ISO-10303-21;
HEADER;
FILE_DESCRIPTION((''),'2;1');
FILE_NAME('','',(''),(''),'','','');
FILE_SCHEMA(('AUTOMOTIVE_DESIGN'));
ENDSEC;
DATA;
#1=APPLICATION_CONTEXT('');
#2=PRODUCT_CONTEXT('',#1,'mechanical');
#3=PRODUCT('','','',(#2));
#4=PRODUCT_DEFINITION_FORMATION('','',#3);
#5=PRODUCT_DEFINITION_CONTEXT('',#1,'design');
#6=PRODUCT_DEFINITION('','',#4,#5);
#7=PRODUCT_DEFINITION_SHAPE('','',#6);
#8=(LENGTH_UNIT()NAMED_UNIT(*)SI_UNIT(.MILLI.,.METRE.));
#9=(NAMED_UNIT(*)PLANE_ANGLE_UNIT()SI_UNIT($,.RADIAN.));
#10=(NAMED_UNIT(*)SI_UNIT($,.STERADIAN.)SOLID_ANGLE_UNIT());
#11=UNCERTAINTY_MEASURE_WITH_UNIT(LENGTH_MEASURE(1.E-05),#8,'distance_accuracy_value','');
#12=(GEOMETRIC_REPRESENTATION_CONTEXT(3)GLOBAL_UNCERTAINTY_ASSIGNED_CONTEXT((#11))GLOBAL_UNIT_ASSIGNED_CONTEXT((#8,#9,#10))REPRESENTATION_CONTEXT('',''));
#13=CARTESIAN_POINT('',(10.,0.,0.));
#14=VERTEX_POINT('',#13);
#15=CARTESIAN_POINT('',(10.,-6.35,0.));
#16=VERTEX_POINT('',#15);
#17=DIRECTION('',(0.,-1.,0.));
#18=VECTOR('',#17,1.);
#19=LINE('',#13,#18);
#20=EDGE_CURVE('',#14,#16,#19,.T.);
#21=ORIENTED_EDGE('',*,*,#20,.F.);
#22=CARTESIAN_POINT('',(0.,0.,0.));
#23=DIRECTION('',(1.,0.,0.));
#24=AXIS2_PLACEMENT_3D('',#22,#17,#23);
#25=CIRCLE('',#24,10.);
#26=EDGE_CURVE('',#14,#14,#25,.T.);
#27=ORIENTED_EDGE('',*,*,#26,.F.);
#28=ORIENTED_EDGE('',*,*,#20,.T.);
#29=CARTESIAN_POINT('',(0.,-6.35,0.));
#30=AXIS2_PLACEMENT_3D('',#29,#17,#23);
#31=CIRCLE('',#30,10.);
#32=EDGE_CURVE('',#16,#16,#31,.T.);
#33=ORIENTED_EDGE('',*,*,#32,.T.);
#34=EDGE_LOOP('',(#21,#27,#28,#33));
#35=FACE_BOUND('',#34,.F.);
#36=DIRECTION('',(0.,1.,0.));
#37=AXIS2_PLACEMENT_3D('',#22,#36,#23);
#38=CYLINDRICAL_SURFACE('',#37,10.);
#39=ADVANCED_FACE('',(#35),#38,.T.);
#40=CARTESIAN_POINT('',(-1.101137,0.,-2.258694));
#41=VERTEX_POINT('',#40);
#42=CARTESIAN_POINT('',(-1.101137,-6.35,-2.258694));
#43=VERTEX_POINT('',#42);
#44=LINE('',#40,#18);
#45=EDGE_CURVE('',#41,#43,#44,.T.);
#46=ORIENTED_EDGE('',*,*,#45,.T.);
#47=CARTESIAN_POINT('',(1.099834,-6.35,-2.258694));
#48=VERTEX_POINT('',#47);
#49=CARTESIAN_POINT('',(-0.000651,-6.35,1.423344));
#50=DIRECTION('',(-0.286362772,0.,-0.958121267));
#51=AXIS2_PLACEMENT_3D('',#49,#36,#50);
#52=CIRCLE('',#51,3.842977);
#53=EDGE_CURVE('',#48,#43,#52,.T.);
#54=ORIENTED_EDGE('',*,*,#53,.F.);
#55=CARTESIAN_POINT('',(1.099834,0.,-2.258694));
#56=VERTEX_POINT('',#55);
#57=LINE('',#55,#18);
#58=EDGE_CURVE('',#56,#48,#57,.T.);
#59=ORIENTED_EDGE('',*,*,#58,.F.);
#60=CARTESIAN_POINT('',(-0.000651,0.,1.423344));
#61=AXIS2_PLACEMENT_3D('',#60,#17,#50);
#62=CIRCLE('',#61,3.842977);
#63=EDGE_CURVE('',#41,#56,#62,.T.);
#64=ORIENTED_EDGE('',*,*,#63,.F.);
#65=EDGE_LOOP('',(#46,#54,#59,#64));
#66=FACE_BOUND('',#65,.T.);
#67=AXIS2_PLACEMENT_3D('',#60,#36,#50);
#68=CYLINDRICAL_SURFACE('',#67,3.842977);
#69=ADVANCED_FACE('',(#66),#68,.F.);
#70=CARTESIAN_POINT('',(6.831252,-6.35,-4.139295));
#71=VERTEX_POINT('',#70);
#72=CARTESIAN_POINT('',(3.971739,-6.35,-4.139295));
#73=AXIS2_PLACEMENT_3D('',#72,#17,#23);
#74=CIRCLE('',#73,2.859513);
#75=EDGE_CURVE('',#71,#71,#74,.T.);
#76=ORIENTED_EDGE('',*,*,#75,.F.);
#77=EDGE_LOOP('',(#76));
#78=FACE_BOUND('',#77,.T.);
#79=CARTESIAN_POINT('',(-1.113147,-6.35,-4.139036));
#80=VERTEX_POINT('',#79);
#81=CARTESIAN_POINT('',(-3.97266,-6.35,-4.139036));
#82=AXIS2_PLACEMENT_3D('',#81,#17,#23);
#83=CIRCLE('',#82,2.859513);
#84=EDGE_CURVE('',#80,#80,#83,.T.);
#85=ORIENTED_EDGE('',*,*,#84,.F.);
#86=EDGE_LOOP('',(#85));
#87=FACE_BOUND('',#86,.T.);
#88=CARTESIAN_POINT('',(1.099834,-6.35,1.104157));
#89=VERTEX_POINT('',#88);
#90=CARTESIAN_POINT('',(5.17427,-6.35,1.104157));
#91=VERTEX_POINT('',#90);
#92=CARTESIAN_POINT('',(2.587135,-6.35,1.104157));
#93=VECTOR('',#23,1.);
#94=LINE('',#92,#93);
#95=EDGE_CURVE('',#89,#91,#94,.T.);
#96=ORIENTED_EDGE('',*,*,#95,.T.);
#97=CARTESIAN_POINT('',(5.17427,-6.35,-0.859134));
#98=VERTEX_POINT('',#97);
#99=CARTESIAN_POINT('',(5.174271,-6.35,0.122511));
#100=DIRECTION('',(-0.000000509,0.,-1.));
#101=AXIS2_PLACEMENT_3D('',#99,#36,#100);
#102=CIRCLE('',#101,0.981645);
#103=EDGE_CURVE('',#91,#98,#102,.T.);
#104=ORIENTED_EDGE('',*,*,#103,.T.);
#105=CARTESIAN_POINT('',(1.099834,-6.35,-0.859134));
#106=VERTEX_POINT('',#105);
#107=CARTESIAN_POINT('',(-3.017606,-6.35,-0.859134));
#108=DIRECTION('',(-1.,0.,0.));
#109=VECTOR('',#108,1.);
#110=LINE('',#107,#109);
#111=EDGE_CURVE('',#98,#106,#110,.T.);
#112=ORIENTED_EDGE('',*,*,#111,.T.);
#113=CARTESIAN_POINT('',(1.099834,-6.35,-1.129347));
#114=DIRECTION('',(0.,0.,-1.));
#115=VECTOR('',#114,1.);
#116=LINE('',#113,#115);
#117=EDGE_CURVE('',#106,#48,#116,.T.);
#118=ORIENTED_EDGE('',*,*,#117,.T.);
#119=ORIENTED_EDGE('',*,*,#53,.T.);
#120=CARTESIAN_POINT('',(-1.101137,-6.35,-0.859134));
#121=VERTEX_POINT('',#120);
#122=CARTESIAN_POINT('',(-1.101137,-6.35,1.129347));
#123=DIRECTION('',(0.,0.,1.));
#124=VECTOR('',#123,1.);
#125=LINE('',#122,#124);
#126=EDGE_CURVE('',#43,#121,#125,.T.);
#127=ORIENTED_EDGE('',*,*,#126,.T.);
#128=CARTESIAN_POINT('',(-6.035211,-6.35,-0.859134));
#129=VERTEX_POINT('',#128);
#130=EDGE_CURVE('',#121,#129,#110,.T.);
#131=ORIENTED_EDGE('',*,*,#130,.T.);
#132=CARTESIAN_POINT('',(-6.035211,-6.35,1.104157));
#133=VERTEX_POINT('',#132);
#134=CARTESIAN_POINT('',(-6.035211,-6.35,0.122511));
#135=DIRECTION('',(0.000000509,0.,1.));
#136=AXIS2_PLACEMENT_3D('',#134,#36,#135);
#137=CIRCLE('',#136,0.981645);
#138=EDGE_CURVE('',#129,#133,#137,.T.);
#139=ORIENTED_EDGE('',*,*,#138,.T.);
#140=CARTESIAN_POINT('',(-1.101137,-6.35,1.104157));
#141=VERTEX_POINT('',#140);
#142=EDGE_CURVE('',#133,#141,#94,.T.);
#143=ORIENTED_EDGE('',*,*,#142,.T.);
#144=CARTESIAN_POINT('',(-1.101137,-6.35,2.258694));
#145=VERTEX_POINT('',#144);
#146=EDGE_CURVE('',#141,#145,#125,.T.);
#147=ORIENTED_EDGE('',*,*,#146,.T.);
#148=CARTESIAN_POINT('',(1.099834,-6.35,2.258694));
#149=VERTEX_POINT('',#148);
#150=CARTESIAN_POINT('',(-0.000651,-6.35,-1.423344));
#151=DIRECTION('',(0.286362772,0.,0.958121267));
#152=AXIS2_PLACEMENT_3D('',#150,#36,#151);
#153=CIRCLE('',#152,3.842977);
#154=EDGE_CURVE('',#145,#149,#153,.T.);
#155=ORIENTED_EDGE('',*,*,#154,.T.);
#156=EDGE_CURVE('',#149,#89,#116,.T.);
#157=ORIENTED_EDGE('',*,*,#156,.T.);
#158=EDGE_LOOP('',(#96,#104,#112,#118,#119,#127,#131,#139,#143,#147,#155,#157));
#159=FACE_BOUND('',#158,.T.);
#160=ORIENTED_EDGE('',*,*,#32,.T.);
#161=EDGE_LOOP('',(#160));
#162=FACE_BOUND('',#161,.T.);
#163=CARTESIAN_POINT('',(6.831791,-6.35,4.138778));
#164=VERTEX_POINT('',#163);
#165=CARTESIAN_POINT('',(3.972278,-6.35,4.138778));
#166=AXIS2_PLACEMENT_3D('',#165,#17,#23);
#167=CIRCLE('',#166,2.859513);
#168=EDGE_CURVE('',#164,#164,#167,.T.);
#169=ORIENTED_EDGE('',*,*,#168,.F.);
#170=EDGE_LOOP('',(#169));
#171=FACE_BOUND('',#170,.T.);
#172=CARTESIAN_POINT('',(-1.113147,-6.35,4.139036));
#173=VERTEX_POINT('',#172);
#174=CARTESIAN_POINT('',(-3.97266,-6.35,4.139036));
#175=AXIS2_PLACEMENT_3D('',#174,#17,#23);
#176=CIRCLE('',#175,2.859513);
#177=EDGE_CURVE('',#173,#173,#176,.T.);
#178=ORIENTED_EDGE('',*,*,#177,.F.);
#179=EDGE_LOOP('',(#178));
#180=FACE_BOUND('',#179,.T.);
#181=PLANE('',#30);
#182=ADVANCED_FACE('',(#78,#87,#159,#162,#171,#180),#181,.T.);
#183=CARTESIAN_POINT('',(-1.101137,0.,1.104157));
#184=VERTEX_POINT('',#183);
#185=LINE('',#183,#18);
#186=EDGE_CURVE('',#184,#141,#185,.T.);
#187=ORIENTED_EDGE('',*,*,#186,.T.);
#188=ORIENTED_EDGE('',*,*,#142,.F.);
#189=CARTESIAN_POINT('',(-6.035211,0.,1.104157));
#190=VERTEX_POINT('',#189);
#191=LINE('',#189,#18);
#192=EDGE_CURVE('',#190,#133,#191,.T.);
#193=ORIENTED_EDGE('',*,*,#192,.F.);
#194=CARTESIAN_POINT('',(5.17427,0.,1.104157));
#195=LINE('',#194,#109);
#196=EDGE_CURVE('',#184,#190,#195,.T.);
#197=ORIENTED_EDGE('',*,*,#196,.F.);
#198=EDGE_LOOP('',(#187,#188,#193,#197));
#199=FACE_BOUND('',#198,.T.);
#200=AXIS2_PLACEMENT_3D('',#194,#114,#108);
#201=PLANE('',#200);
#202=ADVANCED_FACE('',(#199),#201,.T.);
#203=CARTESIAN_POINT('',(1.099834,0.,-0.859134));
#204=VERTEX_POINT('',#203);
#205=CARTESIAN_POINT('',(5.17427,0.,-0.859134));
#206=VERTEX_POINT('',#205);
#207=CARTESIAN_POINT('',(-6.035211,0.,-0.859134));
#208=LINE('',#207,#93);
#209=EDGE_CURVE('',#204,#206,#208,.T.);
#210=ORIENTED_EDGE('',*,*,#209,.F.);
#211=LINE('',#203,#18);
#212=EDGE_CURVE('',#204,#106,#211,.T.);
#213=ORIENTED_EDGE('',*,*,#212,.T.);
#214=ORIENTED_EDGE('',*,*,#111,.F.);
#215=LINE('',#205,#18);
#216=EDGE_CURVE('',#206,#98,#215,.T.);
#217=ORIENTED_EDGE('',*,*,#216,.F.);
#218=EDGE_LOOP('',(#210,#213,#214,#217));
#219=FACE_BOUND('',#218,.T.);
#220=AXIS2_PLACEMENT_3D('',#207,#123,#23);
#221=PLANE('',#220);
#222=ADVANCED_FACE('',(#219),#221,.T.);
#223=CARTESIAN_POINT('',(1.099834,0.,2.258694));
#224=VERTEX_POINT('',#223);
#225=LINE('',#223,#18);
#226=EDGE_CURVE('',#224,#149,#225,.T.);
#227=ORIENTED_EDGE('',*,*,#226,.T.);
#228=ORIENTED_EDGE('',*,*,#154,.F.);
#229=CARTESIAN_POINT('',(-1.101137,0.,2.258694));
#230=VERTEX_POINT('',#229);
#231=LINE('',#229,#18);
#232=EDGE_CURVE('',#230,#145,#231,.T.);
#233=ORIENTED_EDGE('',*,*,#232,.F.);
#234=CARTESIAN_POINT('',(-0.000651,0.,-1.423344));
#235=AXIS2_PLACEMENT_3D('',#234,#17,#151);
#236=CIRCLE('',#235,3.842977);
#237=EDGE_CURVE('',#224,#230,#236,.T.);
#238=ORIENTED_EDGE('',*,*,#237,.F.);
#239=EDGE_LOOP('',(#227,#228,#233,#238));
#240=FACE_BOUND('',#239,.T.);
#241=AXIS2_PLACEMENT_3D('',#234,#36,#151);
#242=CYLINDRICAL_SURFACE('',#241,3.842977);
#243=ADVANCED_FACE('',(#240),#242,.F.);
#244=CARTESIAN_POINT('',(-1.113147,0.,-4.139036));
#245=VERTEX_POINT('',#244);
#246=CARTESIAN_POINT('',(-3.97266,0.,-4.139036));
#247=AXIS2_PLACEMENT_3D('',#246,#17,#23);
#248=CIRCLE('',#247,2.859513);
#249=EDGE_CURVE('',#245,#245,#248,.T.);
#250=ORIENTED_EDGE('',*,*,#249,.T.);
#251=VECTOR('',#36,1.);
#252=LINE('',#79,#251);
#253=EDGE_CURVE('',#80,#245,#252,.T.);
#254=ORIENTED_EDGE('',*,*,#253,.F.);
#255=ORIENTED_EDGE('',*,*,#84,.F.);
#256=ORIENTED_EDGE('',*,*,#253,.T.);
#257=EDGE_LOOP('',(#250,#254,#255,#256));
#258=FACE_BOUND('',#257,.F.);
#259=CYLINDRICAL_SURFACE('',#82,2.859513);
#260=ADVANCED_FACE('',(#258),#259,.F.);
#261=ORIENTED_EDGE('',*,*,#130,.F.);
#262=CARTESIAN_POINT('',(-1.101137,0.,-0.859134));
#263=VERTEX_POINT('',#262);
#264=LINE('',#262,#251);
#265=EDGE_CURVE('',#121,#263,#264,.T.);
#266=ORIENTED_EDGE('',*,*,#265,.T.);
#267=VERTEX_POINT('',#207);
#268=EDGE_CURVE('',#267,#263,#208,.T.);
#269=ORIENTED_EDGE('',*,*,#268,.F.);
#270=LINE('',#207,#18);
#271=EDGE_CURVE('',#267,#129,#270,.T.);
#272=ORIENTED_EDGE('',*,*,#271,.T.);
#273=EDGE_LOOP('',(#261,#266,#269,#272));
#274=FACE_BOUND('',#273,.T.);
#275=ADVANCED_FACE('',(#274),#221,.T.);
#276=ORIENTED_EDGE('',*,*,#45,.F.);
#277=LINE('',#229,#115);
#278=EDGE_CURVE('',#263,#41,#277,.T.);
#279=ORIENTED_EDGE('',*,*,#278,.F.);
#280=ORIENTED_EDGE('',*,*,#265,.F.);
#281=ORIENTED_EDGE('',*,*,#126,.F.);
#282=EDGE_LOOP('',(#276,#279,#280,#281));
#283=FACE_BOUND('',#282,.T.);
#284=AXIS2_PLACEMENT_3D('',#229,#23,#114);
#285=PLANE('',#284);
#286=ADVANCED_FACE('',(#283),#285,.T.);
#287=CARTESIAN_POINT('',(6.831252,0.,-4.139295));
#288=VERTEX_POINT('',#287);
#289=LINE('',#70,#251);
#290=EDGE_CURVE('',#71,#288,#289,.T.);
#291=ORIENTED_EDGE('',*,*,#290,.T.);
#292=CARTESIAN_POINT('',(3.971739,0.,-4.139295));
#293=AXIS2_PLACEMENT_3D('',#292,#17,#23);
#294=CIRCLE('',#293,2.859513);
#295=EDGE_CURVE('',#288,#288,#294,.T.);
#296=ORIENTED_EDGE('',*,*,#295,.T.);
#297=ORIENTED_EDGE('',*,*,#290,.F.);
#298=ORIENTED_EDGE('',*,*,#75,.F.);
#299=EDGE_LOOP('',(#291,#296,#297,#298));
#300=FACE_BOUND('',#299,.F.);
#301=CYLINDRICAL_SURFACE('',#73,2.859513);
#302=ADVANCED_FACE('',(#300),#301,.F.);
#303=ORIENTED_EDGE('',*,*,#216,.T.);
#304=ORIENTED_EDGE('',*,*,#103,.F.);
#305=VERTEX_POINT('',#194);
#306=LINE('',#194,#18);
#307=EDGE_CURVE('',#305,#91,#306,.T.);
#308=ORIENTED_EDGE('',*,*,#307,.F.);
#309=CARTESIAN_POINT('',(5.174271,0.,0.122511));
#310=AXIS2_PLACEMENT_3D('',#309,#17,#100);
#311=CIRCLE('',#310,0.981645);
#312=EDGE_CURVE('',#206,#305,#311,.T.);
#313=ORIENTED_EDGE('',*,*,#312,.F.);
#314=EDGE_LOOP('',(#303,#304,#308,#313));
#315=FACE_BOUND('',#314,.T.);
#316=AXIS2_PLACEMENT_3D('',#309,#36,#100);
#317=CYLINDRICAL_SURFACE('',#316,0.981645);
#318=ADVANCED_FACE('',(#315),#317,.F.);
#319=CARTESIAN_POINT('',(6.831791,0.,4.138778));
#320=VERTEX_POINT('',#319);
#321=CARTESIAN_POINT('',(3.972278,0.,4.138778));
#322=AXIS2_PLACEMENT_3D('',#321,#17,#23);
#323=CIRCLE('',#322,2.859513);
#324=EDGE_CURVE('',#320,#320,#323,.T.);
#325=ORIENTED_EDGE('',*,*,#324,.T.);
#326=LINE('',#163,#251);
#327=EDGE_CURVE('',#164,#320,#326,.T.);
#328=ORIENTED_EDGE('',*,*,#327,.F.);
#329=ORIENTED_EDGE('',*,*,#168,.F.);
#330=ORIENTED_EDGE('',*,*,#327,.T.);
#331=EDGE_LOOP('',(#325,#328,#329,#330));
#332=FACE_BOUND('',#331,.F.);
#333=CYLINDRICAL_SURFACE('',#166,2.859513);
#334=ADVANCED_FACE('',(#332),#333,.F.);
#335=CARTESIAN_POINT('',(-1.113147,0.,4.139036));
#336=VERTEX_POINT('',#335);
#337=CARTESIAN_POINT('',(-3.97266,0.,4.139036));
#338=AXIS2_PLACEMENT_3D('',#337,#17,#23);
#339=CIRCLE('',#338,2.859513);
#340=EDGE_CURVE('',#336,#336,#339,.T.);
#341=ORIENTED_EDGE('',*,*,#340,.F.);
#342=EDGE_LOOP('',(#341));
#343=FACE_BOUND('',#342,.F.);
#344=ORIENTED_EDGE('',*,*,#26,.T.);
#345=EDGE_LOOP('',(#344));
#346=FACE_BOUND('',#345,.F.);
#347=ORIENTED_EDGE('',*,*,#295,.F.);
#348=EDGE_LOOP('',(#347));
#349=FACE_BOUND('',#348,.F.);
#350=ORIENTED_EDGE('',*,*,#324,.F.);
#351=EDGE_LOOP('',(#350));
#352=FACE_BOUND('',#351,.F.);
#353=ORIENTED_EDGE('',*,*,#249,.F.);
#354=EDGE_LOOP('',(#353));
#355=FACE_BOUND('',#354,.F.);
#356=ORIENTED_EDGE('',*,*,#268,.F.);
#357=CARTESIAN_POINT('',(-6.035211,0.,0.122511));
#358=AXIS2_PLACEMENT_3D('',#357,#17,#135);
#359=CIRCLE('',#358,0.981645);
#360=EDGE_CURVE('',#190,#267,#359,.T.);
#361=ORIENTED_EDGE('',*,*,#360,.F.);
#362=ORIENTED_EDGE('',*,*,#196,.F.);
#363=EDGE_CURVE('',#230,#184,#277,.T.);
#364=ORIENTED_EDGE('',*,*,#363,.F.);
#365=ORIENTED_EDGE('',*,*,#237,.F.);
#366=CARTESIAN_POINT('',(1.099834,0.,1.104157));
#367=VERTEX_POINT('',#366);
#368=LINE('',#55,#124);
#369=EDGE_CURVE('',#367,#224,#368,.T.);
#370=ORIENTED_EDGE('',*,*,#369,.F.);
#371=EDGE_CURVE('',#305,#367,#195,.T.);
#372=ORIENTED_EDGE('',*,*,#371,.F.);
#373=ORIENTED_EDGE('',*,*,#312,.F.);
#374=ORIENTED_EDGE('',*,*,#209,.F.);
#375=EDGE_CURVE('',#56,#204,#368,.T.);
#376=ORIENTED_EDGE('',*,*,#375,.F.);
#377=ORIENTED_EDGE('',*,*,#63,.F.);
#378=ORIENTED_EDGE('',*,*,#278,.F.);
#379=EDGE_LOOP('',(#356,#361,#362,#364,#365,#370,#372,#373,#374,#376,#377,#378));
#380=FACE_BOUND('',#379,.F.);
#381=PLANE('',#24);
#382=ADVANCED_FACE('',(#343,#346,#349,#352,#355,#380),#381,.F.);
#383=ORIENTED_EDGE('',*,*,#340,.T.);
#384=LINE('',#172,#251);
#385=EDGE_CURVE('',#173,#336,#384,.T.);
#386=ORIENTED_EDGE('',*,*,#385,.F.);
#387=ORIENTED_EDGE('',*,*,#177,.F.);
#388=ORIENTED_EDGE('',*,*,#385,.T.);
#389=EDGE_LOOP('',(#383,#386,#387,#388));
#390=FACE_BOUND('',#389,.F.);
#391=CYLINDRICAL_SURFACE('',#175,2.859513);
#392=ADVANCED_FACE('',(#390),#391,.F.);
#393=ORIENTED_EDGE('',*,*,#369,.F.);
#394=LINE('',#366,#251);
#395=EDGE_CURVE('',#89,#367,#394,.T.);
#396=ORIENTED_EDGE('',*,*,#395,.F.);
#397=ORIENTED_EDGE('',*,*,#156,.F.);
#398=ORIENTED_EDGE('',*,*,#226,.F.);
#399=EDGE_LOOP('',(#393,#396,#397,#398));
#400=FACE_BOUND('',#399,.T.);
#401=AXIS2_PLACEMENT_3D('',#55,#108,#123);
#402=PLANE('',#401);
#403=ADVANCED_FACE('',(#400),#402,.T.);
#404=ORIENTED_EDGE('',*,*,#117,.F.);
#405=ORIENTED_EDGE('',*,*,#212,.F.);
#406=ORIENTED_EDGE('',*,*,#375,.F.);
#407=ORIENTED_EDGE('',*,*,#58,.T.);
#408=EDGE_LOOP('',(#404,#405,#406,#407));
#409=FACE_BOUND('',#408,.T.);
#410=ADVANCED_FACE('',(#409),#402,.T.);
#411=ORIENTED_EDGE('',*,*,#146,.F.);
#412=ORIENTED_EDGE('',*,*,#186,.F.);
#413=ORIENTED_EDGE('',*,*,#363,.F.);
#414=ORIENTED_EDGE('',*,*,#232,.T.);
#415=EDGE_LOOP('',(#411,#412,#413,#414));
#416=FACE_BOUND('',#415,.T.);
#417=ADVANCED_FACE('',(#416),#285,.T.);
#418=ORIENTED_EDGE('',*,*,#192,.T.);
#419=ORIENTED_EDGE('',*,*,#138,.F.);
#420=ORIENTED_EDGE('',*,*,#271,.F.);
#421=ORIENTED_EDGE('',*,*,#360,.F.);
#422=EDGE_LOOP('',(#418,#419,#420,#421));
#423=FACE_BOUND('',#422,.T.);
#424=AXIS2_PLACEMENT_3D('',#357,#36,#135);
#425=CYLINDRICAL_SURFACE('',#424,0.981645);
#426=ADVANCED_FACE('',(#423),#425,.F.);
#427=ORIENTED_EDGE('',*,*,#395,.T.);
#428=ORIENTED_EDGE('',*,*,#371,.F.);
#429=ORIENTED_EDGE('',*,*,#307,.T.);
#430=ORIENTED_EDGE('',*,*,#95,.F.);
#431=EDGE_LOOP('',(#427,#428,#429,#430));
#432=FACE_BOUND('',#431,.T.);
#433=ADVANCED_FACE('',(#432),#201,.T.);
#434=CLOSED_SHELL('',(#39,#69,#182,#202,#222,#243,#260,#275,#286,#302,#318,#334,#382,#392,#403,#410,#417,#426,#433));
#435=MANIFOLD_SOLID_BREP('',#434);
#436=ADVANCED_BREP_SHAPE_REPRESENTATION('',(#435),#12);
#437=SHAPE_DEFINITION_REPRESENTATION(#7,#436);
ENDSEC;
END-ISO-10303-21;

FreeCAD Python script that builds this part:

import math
import FreeCAD as App
import Part
import Sketcher

doc = App.newDocument("Part")
params = doc.addObject("Spreadsheet::Sheet", "Params")
for row, (alias, value) in enumerate([
    ("pad1_length", "0.25 in"),
    ("pocket1_length", "1 in"),
    ("pocket2_length", "1 in"),
    ("pocket3_length", "1 in"),
], start=1):
    params.set(f"A{row}", alias)
    params.set(f"B{row}", "=" + value)
    params.setAlias(f"B{row}", alias)

body = doc.addObject("PartDesign::Body", "Body")

sketch1 = doc.addObject("Sketcher::SketchObject", "Sketch")
body.addObject(sketch1)
sketch1.AttachmentSupport = (doc.XZ_Plane, [""])
sketch1.MapMode = "FlatFace"
sketch1.addGeometry(Part.Circle(App.Vector(0, 0, 0), App.Vector(0, 0, 1), 10), False)
sketch1.addConstraint([
    Sketcher.Constraint("Coincident", 0, 3, -1, 1),
    Sketcher.Constraint("Diameter", 0, 20.0),
])
pad1 = doc.addObject("PartDesign::Pad", "Pad")
body.addObject(pad1)
pad1.Profile = sketch1
pad1.setExpression("Length", "Params.pad1_length")

sketch2 = doc.addObject("Sketcher::SketchObject", "Sketch001")
body.addObject(sketch2)
sketch2.AttachmentSupport = (doc.XZ_Plane, [""])
sketch2.MapMode = "FlatFace"
sketch2.addGeometry([
    Part.LineSegment(App.Vector(5.2, 1.1, 0), App.Vector(-6, 1.1, 0)),
    Part.ArcOfCircle(Part.Circle(App.Vector(-6, 0.1, 0), App.Vector(0, 0, 1), 1), math.radians(90), math.radians(270)),
    Part.LineSegment(App.Vector(-6, -0.9, 0), App.Vector(5.2, -0.9, 0)),
    Part.ArcOfCircle(Part.Circle(App.Vector(5.2, 0.1, 0), App.Vector(0, 0, 1), 1), math.radians(-90), math.radians(90)),
], False)
sketch2.addConstraint([
    Sketcher.Constraint("Tangent", 0, 2, 1, 1),
    Sketcher.Constraint("Tangent", 1, 2, 2, 1),
    Sketcher.Constraint("Tangent", 2, 2, 3, 1),
    Sketcher.Constraint("Tangent", 3, 2, 0, 1),
    Sketcher.Constraint("Horizontal", 0),
    Sketcher.Constraint("Horizontal", 2),
    Sketcher.Constraint("Radius", 1, 0.981645),
    Sketcher.Constraint("DistanceX", 0, 2, 0, 1, 11.209481),
    Sketcher.Constraint("DistanceX", 1, 3, -1, 1, 6.035211),
    Sketcher.Constraint("DistanceY", -1, 1, 1, 3, 0.122511),
])
pocket1 = doc.addObject("PartDesign::Pocket", "Pocket")
body.addObject(pocket1)
pocket1.Profile = sketch2
pocket1.setExpression("Length", "Params.pocket1_length")
pocket1.Reversed = True

sketch3 = doc.addObject("Sketcher::SketchObject", "Sketch002")
body.addObject(sketch3)
sketch3.AttachmentSupport = (doc.XZ_Plane, [""])
sketch3.MapMode = "FlatFace"
sketch3.addGeometry([
    Part.LineSegment(App.Vector(1.1, -2.3, 0), App.Vector(1.1, 2.3, 0)),
    Part.ArcOfCircle(Part.Circle(App.Vector(0, -1.4, 0), App.Vector(0, 0, 1), 3.8), math.radians(73), math.radians(107)),
    Part.LineSegment(App.Vector(-1.1, 2.3, 0), App.Vector(-1.1, -2.3, 0)),
    Part.ArcOfCircle(Part.Circle(App.Vector(0, 1.4, 0), App.Vector(0, 0, 1), 3.8), math.radians(-107), math.radians(-73)),
], False)
sketch3.addConstraint([
    Sketcher.Constraint("Coincident", 0, 2, 1, 1),
    Sketcher.Constraint("Coincident", 1, 2, 2, 1),
    Sketcher.Constraint("Coincident", 2, 2, 3, 1),
    Sketcher.Constraint("Coincident", 3, 2, 0, 1),
    Sketcher.Constraint("Vertical", 0),
    Sketcher.Constraint("Vertical", 2),
    Sketcher.Constraint("Equal", 1, 3),
    Sketcher.Constraint("Symmetric", 1, 3, 3, 3, -1),
    Sketcher.Constraint("Horizontal", 0, 2, 1, 2),
    Sketcher.Constraint("Radius", 1, 3.842977),
    Sketcher.Constraint("DistanceY", 0, 1, 0, 2, 4.517388),
    Sketcher.Constraint("DistanceX", 1, 3, -1, 1, 0.000651),
    Sketcher.Constraint("DistanceY", 3, 3, 0, 2, 0.83535),
])
pocket2 = doc.addObject("PartDesign::Pocket", "Pocket001")
body.addObject(pocket2)
pocket2.Profile = sketch3
pocket2.setExpression("Length", "Params.pocket2_length")
pocket2.Reversed = True

sketch4 = doc.addObject("Sketcher::SketchObject", "Sketch003")
body.addObject(sketch4)
sketch4.AttachmentSupport = (doc.XZ_Plane, [""])
sketch4.MapMode = "FlatFace"
sketch4.AttachmentOffset = App.Placement(App.Vector(0, 0, 0.25 * 25.4), App.Rotation())
sketch4.addGeometry([
    Part.Circle(App.Vector(-4, 4.1, 0), App.Vector(0, 0, 1), 2.9),
    Part.Circle(App.Vector(-4, -4.1, 0), App.Vector(0, 0, 1), 2.9),
    Part.Circle(App.Vector(4, 4.1, 0), App.Vector(0, 0, 1), 2.9),
    Part.Circle(App.Vector(4, -4.1, 0), App.Vector(0, 0, 1), 2.9),
], False)
sketch4.addConstraint([
    Sketcher.Constraint("Equal", 0, 1),
    Sketcher.Constraint("Equal", 1, 2),
    Sketcher.Constraint("Equal", 2, 3),
    Sketcher.Constraint("Symmetric", 0, 3, 1, 3, -1),
    Sketcher.Constraint("Diameter", 0, 5.719026),
    Sketcher.Constraint("DistanceX", 1, 3, 3, 3, 7.944399),
    Sketcher.Constraint("DistanceX", 0, 3, -1, 1, 3.97266),
    Sketcher.Constraint("DistanceX", -1, 1, 2, 3, 3.972278),
    Sketcher.Constraint("DistanceY", -1, 1, 2, 3, 4.138778),
    Sketcher.Constraint("DistanceY", 3, 3, 1, 3, 0.000259),
    Sketcher.Constraint("DistanceY", 3, 3, 0, 3, 8.278331),
])
pocket3 = doc.addObject("PartDesign::Pocket", "Pocket002")
body.addObject(pocket3)
pocket3.Profile = sketch4
pocket3.setExpression("Length", "Params.pocket3_length")

doc.recompute()
